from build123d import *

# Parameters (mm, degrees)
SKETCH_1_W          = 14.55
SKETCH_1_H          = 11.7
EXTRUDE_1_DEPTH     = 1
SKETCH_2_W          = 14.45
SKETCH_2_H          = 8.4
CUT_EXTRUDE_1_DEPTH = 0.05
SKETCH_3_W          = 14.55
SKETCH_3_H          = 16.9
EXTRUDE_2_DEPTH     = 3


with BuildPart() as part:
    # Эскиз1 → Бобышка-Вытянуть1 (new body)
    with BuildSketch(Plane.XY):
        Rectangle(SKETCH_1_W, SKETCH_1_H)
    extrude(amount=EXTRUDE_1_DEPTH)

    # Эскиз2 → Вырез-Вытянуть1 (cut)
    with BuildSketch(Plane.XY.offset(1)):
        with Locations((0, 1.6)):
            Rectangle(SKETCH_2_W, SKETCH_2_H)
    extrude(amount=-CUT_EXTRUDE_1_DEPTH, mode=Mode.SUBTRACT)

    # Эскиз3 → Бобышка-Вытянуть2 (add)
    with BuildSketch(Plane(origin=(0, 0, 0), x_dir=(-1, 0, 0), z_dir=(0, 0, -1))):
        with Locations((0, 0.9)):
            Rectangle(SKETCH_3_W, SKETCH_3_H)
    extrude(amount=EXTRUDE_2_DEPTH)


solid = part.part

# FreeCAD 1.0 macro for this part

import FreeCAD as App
import Part
import Sketcher
from FreeCAD import Vector

doc = App.newDocument("Part")
params = doc.addObject("Spreadsheet::Sheet", "Params")
for row, (alias, value) in enumerate([
    ("sketch1_height", "11.7 mm"),
    ("sketch1_width", "14.55 mm"),
    ("pad1_length", "1 mm"),
    ("sketch2_height", "8.4 mm"),
    ("sketch2_width", "14.45 mm"),
    ("pocket1_length", "0.05 mm"),
    ("sketch3_height", "16.9 mm"),
    ("sketch3_width", "14.55 mm"),
    ("pad2_length", "3 mm"),
], start=1):
    params.set(f"A{row}", alias)
    params.set(f"B{row}", "=" + value)
    params.setAlias(f"B{row}", alias)

body = doc.addObject("PartDesign::Body", "Body")

# Sketch on XY plane
sketch1 = body.newObject("Sketcher::SketchObject", "Sketch")
sketch1.AttachmentSupport = (doc.getObject("XY_Plane"), [""])
sketch1.MapMode = "FlatFace"
sketch1.addGeometry([
    Part.LineSegment(Vector(-7.275, 5.85, 0), Vector(-7.275, -5.85, 0)),
    Part.LineSegment(Vector(-7.275, -5.85, 0), Vector(7.275, -5.85, 0)),
    Part.LineSegment(Vector(7.275, -5.85, 0), Vector(7.275, 5.85, 0)),
    Part.LineSegment(Vector(7.275, 5.85, 0), Vector(-7.275, 5.85, 0)),
], False)
sketch1.addConstraint([
    Sketcher.Constraint("Coincident", 0, 2, 1, 1),
    Sketcher.Constraint("Coincident", 1, 2, 2, 1),
    Sketcher.Constraint("Coincident", 2, 2, 3, 1),
    Sketcher.Constraint("Coincident", 3, 2, 0, 1),
    Sketcher.Constraint("Vertical", 0),
    Sketcher.Constraint("Horizontal", 1),
    Sketcher.Constraint("Vertical", 2),
    Sketcher.Constraint("Horizontal", 3),
    Sketcher.Constraint("Symmetric", 0, 2, 2, 2, -1, 1),
    Sketcher.Constraint("DistanceY", 0, 2, 0, 1, 11.7),
    Sketcher.Constraint("DistanceX", 1, 1, 1, 2, 14.55),
])
sketch1.setExpression("Constraints[9]", "Params.sketch1_height")
sketch1.setExpression("Constraints[10]", "Params.sketch1_width")
pad1 = body.newObject("PartDesign::Pad", "Pad")
pad1.Profile = sketch1
pad1.setExpression("Length", "Params.pad1_length")

# Sketch on XY plane
sketch2 = body.newObject("Sketcher::SketchObject", "Sketch001")
sketch2.AttachmentSupport = (doc.getObject("XY_Plane"), [""])
sketch2.MapMode = "FlatFace"
sketch2.AttachmentOffset = App.Placement(Vector(0, 0, 1), App.Rotation())
sketch2.addGeometry([
    Part.LineSegment(Vector(-7.225, 5.8, 0), Vector(-7.225, -2.6, 0)),
    Part.LineSegment(Vector(-7.225, -2.6, 0), Vector(7.225, -2.6, 0)),
    Part.LineSegment(Vector(7.225, -2.6, 0), Vector(7.225, 5.8, 0)),
    Part.LineSegment(Vector(7.225, 5.8, 0), Vector(-7.225, 5.8, 0)),
], False)
sketch2.addConstraint([
    Sketcher.Constraint("Coincident", 0, 2, 1, 1),
    Sketcher.Constraint("Coincident", 1, 2, 2, 1),
    Sketcher.Constraint("Coincident", 2, 2, 3, 1),
    Sketcher.Constraint("Coincident", 3, 2, 0, 1),
    Sketcher.Constraint("Vertical", 0),
    Sketcher.Constraint("Horizontal", 1),
    Sketcher.Constraint("Vertical", 2),
    Sketcher.Constraint("Horizontal", 3),
    Sketcher.Constraint("DistanceY", 0, 2, 0, 1, 8.4),
    Sketcher.Constraint("DistanceX", 1, 1, 1, 2, 14.45),
    Sketcher.Constraint("DistanceY", 0, 2, -1, 1, 2.6),
    Sketcher.Constraint("DistanceX", 0, 2, -1, 1, 7.225),
])
sketch2.setExpression("Constraints[8]", "Params.sketch2_height")
sketch2.setExpression("Constraints[9]", "Params.sketch2_width")
pocket1 = body.newObject("PartDesign::Pocket", "Pocket")
pocket1.Profile = sketch2
pocket1.setExpression("Length", "Params.pocket1_length")

# Sketch on XY plane
sketch3 = body.newObject("Sketcher::SketchObject", "Sketch002")
sketch3.AttachmentSupport = (doc.getObject("XY_Plane"), [""])
sketch3.MapMode = "FlatFace"
sketch3.addGeometry([
    Part.LineSegment(Vector(7.275, 9.35, 0), Vector(7.275, -7.55, 0)),
    Part.LineSegment(Vector(7.275, -7.55, 0), Vector(-7.275, -7.55, 0)),
    Part.LineSegment(Vector(-7.275, -7.55, 0), Vector(-7.275, 9.35, 0)),
    Part.LineSegment(Vector(-7.275, 9.35, 0), Vector(7.275, 9.35, 0)),
], False)
sketch3.addConstraint([
    Sketcher.Constraint("Coincident", 0, 2, 1, 1),
    Sketcher.Constraint("Coincident", 1, 2, 2, 1),
    Sketcher.Constraint("Coincident", 2, 2, 3, 1),
    Sketcher.Constraint("Coincident", 3, 2, 0, 1),
    Sketcher.Constraint("Vertical", 0),
    Sketcher.Constraint("Horizontal", 1),
    Sketcher.Constraint("Vertical", 2),
    Sketcher.Constraint("Horizontal", 3),
    Sketcher.Constraint("DistanceY", 0, 2, 0, 1, 16.9),
    Sketcher.Constraint("DistanceX", 1, 2, 1, 1, 14.55),
    Sketcher.Constraint("DistanceY", 0, 2, -1, 1, 7.55),
    Sketcher.Constraint("DistanceX", -1, 1, 0, 2, 7.275),
])
sketch3.setExpression("Constraints[8]", "Params.sketch3_height")
sketch3.setExpression("Constraints[9]", "Params.sketch3_width")
pad2 = body.newObject("PartDesign::Pad", "Pad001")
pad2.Profile = sketch3
pad2.setExpression("Length", "Params.pad2_length")
pad2.Reversed = True

doc.recompute()
